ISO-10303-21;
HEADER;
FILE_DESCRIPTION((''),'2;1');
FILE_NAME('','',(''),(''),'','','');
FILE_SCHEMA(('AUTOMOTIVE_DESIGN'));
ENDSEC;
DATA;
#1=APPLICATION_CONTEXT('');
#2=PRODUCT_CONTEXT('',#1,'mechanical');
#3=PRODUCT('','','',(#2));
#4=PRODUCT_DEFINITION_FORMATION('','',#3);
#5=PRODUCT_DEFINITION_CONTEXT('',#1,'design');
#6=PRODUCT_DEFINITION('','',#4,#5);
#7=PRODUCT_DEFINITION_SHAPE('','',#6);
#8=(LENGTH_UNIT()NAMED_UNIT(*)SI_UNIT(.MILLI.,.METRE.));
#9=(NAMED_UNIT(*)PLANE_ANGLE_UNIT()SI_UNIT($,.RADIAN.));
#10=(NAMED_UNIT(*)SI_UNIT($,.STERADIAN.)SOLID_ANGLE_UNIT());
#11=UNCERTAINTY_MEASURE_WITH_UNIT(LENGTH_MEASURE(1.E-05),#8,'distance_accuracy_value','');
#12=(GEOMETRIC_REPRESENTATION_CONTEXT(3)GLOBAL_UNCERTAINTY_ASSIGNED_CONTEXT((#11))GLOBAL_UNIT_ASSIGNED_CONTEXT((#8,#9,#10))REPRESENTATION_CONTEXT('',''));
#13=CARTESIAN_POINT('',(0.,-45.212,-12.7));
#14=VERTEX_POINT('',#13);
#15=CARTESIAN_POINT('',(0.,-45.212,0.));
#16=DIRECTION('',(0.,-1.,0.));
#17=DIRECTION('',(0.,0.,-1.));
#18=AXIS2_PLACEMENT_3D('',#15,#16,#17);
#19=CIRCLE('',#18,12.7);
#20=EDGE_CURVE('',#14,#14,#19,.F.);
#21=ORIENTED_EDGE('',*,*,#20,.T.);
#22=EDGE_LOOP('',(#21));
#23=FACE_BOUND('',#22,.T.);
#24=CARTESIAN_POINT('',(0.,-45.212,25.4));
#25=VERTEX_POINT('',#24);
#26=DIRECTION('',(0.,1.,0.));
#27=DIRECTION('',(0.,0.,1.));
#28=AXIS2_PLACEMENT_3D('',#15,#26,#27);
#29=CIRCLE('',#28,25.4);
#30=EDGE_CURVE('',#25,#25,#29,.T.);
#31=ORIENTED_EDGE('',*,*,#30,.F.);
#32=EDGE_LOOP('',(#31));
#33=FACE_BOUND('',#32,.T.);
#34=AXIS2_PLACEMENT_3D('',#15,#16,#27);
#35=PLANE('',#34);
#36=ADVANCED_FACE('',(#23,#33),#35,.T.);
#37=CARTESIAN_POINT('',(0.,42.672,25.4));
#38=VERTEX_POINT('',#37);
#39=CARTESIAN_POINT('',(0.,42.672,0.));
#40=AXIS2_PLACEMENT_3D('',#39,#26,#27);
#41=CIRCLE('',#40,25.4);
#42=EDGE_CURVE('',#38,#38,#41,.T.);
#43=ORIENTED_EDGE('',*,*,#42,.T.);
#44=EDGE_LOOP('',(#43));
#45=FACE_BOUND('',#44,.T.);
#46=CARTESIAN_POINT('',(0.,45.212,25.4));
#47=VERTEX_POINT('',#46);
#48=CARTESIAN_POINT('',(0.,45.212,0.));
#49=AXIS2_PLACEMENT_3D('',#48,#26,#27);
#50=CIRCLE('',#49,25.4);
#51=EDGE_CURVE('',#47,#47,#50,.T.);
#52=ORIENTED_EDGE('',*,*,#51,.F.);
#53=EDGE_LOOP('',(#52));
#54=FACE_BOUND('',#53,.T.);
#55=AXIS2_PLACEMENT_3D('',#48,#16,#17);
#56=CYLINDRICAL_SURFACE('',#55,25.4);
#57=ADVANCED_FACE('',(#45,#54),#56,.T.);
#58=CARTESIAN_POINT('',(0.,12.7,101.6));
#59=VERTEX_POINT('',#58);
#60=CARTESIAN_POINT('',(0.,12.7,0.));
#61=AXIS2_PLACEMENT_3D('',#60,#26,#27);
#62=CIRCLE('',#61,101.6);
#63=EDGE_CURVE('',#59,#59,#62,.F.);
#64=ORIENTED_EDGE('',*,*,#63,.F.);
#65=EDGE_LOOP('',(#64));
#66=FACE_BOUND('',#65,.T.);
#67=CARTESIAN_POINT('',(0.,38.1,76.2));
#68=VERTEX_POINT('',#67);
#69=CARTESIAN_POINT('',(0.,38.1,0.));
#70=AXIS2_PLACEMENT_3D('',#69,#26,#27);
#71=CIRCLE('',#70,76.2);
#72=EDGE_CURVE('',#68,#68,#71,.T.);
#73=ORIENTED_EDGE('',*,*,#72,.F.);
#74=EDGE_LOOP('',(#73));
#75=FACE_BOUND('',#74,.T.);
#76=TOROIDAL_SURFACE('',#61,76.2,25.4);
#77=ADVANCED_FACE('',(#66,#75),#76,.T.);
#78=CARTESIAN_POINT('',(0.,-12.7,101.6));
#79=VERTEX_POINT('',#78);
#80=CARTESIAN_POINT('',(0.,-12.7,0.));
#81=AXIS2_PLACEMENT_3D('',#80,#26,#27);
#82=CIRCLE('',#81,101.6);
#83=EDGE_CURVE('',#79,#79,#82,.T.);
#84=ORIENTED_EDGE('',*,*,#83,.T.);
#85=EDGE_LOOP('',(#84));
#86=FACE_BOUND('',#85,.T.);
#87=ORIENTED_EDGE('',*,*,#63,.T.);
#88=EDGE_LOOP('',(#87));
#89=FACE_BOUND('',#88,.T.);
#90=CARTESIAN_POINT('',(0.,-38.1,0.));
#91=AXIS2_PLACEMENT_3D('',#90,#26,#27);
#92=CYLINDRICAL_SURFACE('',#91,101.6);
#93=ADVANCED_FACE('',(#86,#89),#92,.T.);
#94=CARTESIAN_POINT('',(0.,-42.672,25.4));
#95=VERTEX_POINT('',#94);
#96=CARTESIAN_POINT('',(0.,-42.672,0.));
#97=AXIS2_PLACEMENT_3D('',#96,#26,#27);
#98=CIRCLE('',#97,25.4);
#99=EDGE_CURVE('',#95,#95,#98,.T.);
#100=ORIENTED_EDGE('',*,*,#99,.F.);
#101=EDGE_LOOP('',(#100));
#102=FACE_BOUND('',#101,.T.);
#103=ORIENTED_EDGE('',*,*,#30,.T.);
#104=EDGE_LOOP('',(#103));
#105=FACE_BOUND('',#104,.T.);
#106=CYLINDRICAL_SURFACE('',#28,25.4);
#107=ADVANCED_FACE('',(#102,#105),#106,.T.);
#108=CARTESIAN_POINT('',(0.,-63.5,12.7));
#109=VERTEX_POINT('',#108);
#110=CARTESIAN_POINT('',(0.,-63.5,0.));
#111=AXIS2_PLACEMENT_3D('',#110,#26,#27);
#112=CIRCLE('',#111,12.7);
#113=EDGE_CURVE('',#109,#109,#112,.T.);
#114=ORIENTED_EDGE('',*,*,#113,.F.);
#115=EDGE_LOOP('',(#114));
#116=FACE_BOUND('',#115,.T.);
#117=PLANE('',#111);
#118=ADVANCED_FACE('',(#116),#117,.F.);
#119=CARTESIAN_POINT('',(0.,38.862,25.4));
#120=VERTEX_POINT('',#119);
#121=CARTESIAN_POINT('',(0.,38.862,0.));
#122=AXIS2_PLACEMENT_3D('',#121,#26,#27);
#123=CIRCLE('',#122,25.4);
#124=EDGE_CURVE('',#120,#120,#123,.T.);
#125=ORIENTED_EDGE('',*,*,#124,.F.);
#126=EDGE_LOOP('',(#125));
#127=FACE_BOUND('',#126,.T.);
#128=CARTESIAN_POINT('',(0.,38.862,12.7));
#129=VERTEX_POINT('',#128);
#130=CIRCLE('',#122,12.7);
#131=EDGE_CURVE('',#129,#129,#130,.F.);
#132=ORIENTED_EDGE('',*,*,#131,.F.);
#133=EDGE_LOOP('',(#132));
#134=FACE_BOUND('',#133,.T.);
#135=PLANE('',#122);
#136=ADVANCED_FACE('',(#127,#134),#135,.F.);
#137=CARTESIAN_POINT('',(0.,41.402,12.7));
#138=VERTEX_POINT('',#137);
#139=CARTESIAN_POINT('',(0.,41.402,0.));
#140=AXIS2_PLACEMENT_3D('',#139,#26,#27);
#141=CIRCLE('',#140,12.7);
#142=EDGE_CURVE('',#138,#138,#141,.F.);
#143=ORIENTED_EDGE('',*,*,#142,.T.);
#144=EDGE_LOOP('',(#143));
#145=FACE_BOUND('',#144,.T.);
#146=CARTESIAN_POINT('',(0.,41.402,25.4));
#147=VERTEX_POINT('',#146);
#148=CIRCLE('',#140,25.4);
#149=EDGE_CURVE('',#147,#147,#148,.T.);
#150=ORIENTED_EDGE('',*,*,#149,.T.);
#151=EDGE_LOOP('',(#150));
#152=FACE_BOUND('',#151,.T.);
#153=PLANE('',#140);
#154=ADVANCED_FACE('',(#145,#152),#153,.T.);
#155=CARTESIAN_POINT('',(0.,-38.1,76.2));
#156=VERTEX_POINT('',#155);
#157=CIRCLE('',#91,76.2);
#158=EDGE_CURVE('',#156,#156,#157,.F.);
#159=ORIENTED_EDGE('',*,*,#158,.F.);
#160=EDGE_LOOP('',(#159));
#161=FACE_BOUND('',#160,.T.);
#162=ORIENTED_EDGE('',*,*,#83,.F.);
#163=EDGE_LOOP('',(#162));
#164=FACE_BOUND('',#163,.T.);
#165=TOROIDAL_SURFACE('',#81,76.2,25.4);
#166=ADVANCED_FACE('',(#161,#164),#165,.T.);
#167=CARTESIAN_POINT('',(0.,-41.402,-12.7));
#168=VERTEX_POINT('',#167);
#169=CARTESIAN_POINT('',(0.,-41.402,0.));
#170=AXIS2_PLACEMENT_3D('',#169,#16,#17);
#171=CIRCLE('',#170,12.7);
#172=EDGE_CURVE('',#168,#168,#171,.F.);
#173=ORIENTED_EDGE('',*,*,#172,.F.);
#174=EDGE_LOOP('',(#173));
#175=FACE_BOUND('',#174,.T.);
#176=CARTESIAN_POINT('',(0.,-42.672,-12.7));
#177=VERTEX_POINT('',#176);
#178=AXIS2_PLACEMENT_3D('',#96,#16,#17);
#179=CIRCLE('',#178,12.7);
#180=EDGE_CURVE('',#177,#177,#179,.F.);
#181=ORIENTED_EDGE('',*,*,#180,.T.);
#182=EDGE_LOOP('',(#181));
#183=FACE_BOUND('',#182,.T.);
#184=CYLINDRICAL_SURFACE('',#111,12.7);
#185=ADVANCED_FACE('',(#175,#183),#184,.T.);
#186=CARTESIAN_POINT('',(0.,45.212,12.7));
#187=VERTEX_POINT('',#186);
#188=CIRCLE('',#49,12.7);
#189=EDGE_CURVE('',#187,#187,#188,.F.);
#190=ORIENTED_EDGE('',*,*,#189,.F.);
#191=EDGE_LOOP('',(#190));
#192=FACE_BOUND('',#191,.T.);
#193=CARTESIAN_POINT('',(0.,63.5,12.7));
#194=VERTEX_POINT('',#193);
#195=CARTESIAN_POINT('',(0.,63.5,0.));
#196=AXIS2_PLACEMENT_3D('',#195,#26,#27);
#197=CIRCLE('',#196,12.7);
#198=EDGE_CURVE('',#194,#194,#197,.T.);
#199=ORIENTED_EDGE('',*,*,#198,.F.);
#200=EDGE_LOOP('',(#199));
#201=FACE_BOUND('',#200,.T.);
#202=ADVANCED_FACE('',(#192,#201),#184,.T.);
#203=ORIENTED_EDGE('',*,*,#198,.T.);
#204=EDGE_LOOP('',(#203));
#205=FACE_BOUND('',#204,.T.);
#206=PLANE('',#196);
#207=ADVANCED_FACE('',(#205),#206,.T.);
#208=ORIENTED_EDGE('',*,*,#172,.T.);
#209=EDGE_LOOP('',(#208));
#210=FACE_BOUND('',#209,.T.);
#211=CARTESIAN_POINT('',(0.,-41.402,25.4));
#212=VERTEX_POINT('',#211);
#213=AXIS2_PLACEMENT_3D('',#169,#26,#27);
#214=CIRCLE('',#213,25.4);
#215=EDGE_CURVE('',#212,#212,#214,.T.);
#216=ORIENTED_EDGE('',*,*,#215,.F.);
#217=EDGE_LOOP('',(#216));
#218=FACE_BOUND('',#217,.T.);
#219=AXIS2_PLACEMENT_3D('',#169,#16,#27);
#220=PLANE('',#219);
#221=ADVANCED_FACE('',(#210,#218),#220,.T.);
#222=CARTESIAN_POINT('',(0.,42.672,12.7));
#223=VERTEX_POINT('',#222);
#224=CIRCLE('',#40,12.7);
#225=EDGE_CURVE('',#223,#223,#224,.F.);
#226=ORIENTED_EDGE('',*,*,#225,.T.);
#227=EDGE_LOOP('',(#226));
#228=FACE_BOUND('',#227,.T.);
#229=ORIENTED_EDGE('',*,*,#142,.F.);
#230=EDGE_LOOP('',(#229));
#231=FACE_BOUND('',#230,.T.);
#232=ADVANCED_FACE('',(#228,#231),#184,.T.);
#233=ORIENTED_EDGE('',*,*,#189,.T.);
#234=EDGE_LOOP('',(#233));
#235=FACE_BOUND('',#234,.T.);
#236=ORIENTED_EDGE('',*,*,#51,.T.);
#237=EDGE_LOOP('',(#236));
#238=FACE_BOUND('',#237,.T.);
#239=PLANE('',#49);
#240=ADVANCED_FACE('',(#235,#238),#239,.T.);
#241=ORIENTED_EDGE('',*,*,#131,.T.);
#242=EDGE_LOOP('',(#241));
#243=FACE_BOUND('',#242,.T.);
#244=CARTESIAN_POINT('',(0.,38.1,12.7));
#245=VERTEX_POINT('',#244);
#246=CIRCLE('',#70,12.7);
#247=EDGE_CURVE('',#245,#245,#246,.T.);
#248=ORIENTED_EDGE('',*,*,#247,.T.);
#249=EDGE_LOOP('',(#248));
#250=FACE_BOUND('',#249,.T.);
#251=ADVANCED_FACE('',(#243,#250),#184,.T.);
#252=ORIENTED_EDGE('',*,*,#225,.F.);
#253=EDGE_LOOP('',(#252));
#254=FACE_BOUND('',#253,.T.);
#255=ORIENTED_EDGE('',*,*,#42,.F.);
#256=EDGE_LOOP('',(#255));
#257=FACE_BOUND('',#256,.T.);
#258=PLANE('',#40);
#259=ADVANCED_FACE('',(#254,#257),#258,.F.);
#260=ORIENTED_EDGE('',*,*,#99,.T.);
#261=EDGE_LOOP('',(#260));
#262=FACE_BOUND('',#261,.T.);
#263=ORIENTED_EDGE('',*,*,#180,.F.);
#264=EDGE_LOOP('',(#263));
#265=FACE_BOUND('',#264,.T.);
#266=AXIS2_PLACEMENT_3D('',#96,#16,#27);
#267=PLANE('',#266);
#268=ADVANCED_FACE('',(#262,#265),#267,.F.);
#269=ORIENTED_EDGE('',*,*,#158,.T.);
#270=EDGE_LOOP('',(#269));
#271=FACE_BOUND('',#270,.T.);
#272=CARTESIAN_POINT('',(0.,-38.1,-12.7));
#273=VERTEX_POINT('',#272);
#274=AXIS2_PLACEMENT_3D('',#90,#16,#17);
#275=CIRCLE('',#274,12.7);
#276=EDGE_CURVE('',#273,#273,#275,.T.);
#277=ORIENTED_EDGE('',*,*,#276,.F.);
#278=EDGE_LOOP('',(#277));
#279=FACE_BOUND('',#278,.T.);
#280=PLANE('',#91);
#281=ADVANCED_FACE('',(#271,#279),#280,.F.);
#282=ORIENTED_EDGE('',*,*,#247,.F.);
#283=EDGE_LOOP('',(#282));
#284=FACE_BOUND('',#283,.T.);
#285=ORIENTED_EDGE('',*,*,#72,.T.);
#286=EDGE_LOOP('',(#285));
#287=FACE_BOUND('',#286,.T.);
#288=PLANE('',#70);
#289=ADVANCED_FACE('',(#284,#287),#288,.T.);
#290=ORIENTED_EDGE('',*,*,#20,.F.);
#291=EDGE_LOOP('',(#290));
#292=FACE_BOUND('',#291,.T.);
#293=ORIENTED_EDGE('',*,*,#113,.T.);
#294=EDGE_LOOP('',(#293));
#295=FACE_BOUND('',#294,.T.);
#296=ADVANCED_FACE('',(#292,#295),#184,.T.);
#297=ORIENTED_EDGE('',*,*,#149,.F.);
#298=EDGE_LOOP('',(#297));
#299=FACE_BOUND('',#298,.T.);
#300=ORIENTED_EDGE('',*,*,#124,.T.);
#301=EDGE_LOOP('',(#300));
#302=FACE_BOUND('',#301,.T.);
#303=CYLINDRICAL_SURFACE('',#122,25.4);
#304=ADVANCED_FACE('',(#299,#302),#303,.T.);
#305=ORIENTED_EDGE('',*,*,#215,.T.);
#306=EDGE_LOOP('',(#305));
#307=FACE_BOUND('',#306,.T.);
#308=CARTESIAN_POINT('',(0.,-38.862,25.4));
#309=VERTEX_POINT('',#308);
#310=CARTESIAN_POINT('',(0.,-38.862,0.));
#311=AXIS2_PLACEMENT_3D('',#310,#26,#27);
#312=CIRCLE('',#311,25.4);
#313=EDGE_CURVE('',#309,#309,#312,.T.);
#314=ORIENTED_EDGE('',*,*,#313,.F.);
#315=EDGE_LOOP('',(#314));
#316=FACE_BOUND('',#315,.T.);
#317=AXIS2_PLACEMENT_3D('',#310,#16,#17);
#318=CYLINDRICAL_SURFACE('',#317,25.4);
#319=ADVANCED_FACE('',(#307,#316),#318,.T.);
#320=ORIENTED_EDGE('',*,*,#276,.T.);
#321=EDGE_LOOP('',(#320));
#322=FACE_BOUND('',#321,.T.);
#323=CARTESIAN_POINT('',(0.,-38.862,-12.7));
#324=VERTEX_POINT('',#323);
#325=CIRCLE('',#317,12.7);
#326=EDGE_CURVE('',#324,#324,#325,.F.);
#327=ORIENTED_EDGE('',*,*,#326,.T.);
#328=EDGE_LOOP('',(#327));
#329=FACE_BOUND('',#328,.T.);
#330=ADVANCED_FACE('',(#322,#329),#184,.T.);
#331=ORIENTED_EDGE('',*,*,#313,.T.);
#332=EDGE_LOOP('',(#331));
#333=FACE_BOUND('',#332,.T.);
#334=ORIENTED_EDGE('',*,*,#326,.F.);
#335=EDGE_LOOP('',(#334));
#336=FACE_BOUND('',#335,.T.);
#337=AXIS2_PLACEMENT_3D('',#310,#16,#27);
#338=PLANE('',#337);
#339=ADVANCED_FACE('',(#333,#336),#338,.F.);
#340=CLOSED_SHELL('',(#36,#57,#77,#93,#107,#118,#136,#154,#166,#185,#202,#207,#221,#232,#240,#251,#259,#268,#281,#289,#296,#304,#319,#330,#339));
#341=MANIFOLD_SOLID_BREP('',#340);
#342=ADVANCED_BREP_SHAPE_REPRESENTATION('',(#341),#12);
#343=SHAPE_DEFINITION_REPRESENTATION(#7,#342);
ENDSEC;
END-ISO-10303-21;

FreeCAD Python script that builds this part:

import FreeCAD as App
import Part
import Sketcher
Q = App.Units.Quantity


def edges_at(feature, points):
    """Names of the edges that pass closest to the given points."""
    edges = feature.Shape.Edges
    near = lambda p: min(range(len(edges)), key=lambda i: edges[i].distToShape(Part.Vertex(*p))[0])
    return sorted({f"Edge{near(p) + 1}" for p in points})

doc = App.newDocument("Part")
params = doc.addObject("Spreadsheet::Sheet", "Params")
for row, (alias, value) in enumerate([
    ("sketch1_diameter", "8 in"),
    ("pad1_length", "1.5 in"),
    ("pad1_length2", "1.5 in"),
    ("sketch2_diameter", "1 in"),
    ("pocket1_length", "3 in"),
    ("fillet_radius", "1 in"),
    ("sketch3_diameter", "1 in"),
    ("pad2_length", "2.5 in"),
    ("pad2_length2", "2.5 in"),
    ("sketch4_diameter", "2 in"),
    ("pad3_length", "0.1 in"),
    ("sketch5_diameter", "2 in"),
    ("pad4_length", "0.1 in"),
], start=1):
    params.set(f"A{row}", alias)
    params.set(f"B{row}", "=" + value)
    params.setAlias(f"B{row}", alias)

body = doc.addObject("PartDesign::Body", "Body")

sketch1 = body.newObject("Sketcher::SketchObject", "Sketch")
sketch1.AttachmentSupport = (doc.getObject("XZ_Plane"), [""])
sketch1.MapMode = "FlatFace"
sketch1.addGeometry(Part.Circle(App.Vector(0, 0, 0), App.Vector(0, 0, 1), 102), False)
sketch1.addConstraint(Sketcher.Constraint("Coincident", 0, 3, -1, 1))
sketch1.addConstraint(Sketcher.Constraint("Diameter", 0, Q("8 in")))
sketch1.setExpression("Constraints[1]", "Params.sketch1_diameter")
pad1 = body.newObject("PartDesign::Pad", "Pad")
pad1.Profile = sketch1
pad1.Type = "TwoLengths"
pad1.setExpression("Length", "Params.pad1_length")
pad1.setExpression("Length2", "Params.pad1_length2")
pad1.Reversed = True

sketch2 = body.newObject("Sketcher::SketchObject", "Sketch001")
sketch2.AttachmentSupport = (doc.getObject("XZ_Plane"), [""])
sketch2.MapMode = "FlatFace"
sketch2.AttachmentOffset = App.Placement(App.Vector(0, 0, 1.5 * 25.4), App.Rotation())
sketch2.addGeometry(Part.Circle(App.Vector(0, 0, 0), App.Vector(0, 0, 1), 13), False)
sketch2.addConstraint(Sketcher.Constraint("Coincident", 0, 3, -1, 1))
sketch2.addConstraint(Sketcher.Constraint("Diameter", 0, Q("1 in")))
sketch2.setExpression("Constraints[1]", "Params.sketch2_diameter")
pocket1 = body.newObject("PartDesign::Pocket", "Pocket")
pocket1.Profile = sketch2
pocket1.setExpression("Length", "Params.pocket1_length")
doc.recompute()

fillet = body.newObject("PartDesign::Fillet", "Fillet")
fillet.Base = (pocket1, edges_at(pocket1, [(-101.6, 38.1, 0), (-101.6, -38.1, 0)]))
fillet.setExpression("Radius", "Params.fillet_radius")

sketch3 = body.newObject("Sketcher::SketchObject", "Sketch002")
sketch3.AttachmentSupport = (doc.getObject("XZ_Plane"), [""])
sketch3.MapMode = "FlatFace"
sketch3.addGeometry(Part.Circle(App.Vector(0, 0, 0), App.Vector(0, 0, 1), 13), False)
sketch3.addConstraint(Sketcher.Constraint("Coincident", 0, 3, -1, 1))
sketch3.addConstraint(Sketcher.Constraint("Diameter", 0, Q("1 in")))
sketch3.setExpression("Constraints[1]", "Params.sketch3_diameter")
pad2 = body.newObject("PartDesign::Pad", "Pad001")
pad2.Profile = sketch3
pad2.Type = "TwoLengths"
pad2.setExpression("Length", "Params.pad2_length")
pad2.setExpression("Length2", "Params.pad2_length2")
pad2.Reversed = True

sketch4 = body.newObject("Sketcher::SketchObject", "Sketch003")
sketch4.AttachmentSupport = (doc.getObject("XZ_Plane"), [""])
sketch4.MapMode = "FlatFace"
sketch4.AttachmentOffset = App.Placement(App.Vector(0, 0, -1.68 * 25.4), App.Rotation())
sketch4.addGeometry(Part.Circle(App.Vector(0, 0, 0), App.Vector(0, 0, 1), 25), False)
sketch4.addConstraint(Sketcher.Constraint("Coincident", 0, 3, -1, 1))
sketch4.addConstraint(Sketcher.Constraint("Diameter", 0, Q("2 in")))
sketch4.setExpression("Constraints[1]", "Params.sketch4_diameter")
pad3 = body.newObject("PartDesign::Pad", "Pad002")
pad3.Profile = sketch4
pad3.setExpression("Length", "Params.pad3_length")
pad3.Reversed = True

sketch5 = body.newObject("Sketcher::SketchObject", "Sketch004")
sketch5.AttachmentSupport = (doc.getObject("XZ_Plane"), [""])
sketch5.MapMode = "FlatFace"
sketch5.AttachmentOffset = App.Placement(App.Vector(0, 0, -1.63 * 25.4), App.Rotation())
sketch5.addGeometry(Part.Circle(App.Vector(0, 0, 0), App.Vector(0, 0, 1), 25), False)
sketch5.addConstraint(Sketcher.Constraint("Coincident", 0, 3, -1, 1))
sketch5.addConstraint(Sketcher.Constraint("Diameter", 0, Q("2 in")))
sketch5.setExpression("Constraints[1]", "Params.sketch5_diameter")
pad4 = body.newObject("PartDesign::Pad", "Pad003")
pad4.Profile = sketch5
pad4.setExpression("Length", "Params.pad4_length")
doc.recompute()

mirrored = body.newObject("PartDesign::Mirrored", "Mirrored")
mirrored.Originals = [pad3, pad4]
mirrored.MirrorPlane = (doc.getObject("XZ_Plane"), [""])
body.Tip = mirrored

doc.recompute()
